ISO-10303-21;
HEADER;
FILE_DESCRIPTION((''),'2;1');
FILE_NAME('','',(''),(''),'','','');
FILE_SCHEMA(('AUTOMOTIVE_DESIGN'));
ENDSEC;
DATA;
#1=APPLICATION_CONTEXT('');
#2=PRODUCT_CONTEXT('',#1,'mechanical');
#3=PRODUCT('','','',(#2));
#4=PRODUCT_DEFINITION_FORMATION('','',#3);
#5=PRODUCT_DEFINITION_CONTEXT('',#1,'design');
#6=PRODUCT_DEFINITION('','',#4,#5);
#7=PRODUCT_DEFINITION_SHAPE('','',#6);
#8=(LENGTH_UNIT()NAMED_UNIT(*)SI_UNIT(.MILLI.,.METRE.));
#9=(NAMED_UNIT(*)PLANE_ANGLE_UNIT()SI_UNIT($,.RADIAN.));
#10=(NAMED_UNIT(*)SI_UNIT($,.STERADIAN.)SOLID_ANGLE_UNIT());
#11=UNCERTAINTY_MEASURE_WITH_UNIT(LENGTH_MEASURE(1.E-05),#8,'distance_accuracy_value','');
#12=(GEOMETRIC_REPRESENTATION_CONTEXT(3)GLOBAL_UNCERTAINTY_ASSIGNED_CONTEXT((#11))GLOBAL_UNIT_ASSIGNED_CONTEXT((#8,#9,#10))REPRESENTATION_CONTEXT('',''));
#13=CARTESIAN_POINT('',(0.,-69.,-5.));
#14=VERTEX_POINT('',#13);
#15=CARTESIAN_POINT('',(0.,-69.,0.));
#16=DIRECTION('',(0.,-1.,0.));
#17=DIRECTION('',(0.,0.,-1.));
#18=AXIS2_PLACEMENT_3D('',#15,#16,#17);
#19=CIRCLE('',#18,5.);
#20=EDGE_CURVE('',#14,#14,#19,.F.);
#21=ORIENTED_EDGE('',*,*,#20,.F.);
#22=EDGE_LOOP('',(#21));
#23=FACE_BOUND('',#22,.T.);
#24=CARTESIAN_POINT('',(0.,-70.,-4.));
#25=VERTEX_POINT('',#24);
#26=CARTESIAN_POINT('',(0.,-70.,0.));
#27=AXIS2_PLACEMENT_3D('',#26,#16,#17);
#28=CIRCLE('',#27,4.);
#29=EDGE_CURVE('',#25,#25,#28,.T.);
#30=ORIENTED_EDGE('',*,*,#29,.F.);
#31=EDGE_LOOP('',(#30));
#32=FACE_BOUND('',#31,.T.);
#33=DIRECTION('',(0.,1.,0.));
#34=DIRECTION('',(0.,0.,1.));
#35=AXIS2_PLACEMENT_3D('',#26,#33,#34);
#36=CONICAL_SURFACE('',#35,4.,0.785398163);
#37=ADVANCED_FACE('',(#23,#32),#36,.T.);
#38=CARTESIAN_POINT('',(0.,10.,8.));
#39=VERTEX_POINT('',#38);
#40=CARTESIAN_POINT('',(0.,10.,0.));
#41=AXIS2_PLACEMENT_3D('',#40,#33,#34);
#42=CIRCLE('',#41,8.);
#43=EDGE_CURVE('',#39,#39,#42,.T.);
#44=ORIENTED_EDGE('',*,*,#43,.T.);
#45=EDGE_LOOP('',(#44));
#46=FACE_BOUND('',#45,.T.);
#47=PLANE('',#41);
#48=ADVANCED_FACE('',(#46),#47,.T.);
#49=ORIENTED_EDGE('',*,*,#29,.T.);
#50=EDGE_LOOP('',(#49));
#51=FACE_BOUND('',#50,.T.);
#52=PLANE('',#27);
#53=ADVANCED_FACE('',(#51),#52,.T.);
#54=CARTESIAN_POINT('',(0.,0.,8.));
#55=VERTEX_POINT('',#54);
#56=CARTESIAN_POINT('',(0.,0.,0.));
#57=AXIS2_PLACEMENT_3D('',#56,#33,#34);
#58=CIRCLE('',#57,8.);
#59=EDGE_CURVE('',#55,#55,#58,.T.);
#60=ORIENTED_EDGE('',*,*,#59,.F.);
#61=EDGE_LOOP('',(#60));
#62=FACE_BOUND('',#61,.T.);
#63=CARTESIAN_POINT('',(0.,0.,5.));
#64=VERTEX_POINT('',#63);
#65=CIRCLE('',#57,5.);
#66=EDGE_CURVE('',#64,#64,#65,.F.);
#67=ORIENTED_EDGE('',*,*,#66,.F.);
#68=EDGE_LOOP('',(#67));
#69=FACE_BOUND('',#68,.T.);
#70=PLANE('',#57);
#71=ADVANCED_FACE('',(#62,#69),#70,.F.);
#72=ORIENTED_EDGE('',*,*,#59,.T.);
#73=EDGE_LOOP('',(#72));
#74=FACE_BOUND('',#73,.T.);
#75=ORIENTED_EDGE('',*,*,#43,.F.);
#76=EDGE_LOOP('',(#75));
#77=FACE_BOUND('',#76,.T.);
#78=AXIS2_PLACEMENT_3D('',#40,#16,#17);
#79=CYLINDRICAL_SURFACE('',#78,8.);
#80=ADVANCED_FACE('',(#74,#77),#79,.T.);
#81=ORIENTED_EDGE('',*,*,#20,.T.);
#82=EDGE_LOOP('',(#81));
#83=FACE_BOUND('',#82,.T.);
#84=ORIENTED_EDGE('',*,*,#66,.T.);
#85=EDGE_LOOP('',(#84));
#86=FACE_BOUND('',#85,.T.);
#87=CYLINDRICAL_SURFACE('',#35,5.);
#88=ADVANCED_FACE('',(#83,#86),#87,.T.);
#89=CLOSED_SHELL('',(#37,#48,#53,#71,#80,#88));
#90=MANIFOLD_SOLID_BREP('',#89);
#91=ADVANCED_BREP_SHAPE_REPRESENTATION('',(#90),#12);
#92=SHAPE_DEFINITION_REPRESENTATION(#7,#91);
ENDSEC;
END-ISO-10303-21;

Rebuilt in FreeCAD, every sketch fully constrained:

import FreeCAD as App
import Part
import Sketcher


def edges_at(feature, points):
    """Names of the edges that pass closest to the given points."""
    edges = feature.Shape.Edges
    near = lambda p: min(range(len(edges)), key=lambda i: edges[i].distToShape(Part.Vertex(*p))[0])
    return sorted({f"Edge{near(p) + 1}" for p in points})

doc = App.newDocument("Part")
params = doc.addObject("Spreadsheet::Sheet", "Params")
for row, (alias, value) in enumerate([
    ("sketch1_diameter", "16 mm"),
    ("pad1_length", "10 mm"),
    ("sketch2_diameter", "10 mm"),
    ("pad2_length", "70 mm"),
    ("chamfer_size", "1 mm"),
], start=1):
    params.set(f"A{row}", alias)
    params.set(f"B{row}", "=" + value)
    params.setAlias(f"B{row}", alias)

body = doc.addObject("PartDesign::Body", "Body")

# Sketch on XZ plane
sketch1 = body.newObject("Sketcher::SketchObject", "Sketch")
sketch1.AttachmentSupport = (doc.getObject("XZ_Plane"), [""])
sketch1.MapMode = "FlatFace"
sketch1.addGeometry(Part.Circle(App.Vector(0, 0, 0), App.Vector(0, 0, 1), 8), False)
sketch1.addConstraint([
    Sketcher.Constraint("Coincident", 0, 3, -1, 1),
    Sketcher.Constraint("Diameter", 0, 16.0),
])
sketch1.setExpression("Constraints[1]", "Params.sketch1_diameter")
pad1 = body.newObject("PartDesign::Pad", "Pad")
pad1.Profile = sketch1
pad1.setExpression("Length", "Params.pad1_length")
pad1.Reversed = True

# Sketch on XZ plane
sketch2 = body.newObject("Sketcher::SketchObject", "Sketch001")
sketch2.AttachmentSupport = (doc.getObject("XZ_Plane"), [""])
sketch2.MapMode = "FlatFace"
sketch2.addGeometry(Part.Circle(App.Vector(0, 0, 0), App.Vector(0, 0, 1), 5), False)
sketch2.addConstraint([
    Sketcher.Constraint("Coincident", 0, 3, -1, 1),
    Sketcher.Constraint("Diameter", 0, 10.0),
])
sketch2.setExpression("Constraints[1]", "Params.sketch2_diameter")
pad2 = body.newObject("PartDesign::Pad", "Pad001")
pad2.Profile = sketch2
pad2.setExpression("Length", "Params.pad2_length")
doc.recompute()

chamfer = body.newObject("PartDesign::Chamfer", "Chamfer")
chamfer.Base = (pad2, edges_at(pad2, [(-5, -70, 0)]))
chamfer.setExpression("Size", "Params.chamfer_size")

doc.recompute()
